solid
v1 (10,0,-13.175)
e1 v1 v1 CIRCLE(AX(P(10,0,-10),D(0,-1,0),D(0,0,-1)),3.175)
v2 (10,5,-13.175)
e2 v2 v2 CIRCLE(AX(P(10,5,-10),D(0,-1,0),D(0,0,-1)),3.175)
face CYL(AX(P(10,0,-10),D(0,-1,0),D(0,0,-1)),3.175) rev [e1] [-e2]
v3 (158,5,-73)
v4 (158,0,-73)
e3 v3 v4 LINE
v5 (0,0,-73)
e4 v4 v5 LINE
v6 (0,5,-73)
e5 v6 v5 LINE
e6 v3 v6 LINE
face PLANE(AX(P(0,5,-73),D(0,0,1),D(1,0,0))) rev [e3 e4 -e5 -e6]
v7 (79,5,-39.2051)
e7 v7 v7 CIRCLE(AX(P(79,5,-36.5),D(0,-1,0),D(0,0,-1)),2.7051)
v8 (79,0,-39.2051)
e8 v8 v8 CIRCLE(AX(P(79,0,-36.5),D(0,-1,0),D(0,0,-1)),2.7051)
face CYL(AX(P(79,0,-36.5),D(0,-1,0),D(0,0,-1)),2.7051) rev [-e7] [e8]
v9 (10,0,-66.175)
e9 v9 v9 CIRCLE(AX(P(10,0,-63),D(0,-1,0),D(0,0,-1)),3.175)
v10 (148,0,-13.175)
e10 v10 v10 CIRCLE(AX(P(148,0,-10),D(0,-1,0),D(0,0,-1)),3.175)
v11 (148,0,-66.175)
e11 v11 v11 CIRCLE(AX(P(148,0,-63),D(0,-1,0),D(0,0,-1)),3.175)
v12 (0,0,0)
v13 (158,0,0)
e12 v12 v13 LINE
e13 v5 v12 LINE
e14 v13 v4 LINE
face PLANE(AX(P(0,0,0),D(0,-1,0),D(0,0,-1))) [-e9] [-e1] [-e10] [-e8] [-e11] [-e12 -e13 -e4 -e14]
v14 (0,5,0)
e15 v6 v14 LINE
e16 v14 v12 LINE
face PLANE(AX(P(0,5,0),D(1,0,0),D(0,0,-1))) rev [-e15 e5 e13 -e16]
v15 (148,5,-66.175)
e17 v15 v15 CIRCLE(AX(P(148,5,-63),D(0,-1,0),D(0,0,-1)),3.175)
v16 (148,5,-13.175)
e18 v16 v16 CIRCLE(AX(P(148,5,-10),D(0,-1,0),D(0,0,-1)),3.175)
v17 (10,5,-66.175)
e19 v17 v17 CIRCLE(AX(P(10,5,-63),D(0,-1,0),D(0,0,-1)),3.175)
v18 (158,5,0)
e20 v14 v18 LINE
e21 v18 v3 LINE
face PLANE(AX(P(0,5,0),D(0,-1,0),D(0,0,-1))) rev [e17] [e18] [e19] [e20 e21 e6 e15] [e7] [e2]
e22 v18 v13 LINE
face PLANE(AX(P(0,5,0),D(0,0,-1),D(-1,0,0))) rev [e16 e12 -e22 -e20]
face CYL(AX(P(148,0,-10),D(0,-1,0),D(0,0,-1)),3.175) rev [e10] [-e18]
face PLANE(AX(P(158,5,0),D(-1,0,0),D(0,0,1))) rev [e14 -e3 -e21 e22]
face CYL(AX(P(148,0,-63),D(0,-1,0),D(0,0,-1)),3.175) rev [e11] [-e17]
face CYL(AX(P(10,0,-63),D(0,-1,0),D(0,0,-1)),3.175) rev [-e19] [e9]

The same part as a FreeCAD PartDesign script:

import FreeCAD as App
import Part
import Sketcher
from FreeCAD import Vector


def add_polygon(sketch, points):
    """Adds a closed chain of lines whose ends are joined by coincident constraints."""
    first, n = sketch.GeometryCount, len(points)
    for a, b in zip(points, points[1:] + points[:1]):
        sketch.addGeometry(Part.LineSegment(App.Vector(*a, 0), App.Vector(*b, 0)), False)
    for i in range(n):
        sketch.addConstraint(Sketcher.Constraint("Coincident", first + i, 2, first + (i + 1) % n, 1))

doc = App.newDocument("Part")
body = doc.addObject("PartDesign::Body", "Body")

sketch1 = doc.addObject("Sketcher::SketchObject", "Sketch")
body.addObject(sketch1)
sketch1.AttachmentSupport = (doc.XZ_Plane, [""])
sketch1.MapMode = "FlatFace"
add_polygon(sketch1, [(0, -73), (0, 0), (158, 0), (158, -73)])
sketch1.addConstraint([
    Sketcher.Constraint("Vertical", 0),
    Sketcher.Constraint("Horizontal", 1),
    Sketcher.Constraint("Vertical", 2),
    Sketcher.Constraint("Horizontal", 3),
    Sketcher.Constraint("Coincident", 0, 2, -1, 1),
    Sketcher.Constraint("DistanceX", 1, 1, 1, 2, 158.0),
    Sketcher.Constraint("DistanceY", 0, 1, 0, 2, 73.0),
])
pad1 = doc.addObject("PartDesign::Pad", "Pad")
body.addObject(pad1)
pad1.Profile = sketch1
pad1.Length = 5
pad1.Reversed = True

sketch2 = doc.addObject("Sketcher::SketchObject", "Sketch001")
body.addObject(sketch2)
sketch2.AttachmentSupport = (doc.XZ_Plane, [""])
sketch2.MapMode = "FlatFace"
sketch2.addGeometry([
    Part.Circle(Vector(10, -10, 0), Vector(0, 0, 1), 3.2),
    Part.Circle(Vector(10, -63, 0), Vector(0, 0, 1), 3.2),
    Part.Circle(Vector(148, -63, 0), Vector(0, 0, 1), 3.2),
    Part.Circle(Vector(148, -10, 0), Vector(0, 0, 1), 3.2),
], False)
sketch2.addConstraint([
    Sketcher.Constraint("Equal", 0, 1),
    Sketcher.Constraint("Equal", 1, 2),
    Sketcher.Constraint("Equal", 2, 3),
    Sketcher.Constraint("Horizontal", 1, 3, 2, 3),
    Sketcher.Constraint("Horizontal", 0, 3, 3, 3),
    Sketcher.Constraint("Vertical", 0, 3, 1, 3),
    Sketcher.Constraint("Vertical", 2, 3, 3, 3),
    Sketcher.Constraint("Diameter", 0, 6.35),
    Sketcher.Constraint("DistanceX", -1, 1, 0, 3, 10.0),
    Sketcher.Constraint("DistanceY", 0, 3, -1, 1, 10.0),
    Sketcher.Constraint("DistanceY", 1, 3, -1, 1, 63.0),
    Sketcher.Constraint("DistanceX", -1, 1, 2, 3, 148.0),
])
doc.recompute()
hole = doc.addObject("PartDesign::Hole", "Hole")
body.addObject(hole)
hole.Profile = sketch2
hole.ThreadType = "None"
hole.Diameter = 6.35
hole.DepthType = "ThroughAll"

sketch3 = doc.addObject("Sketcher::SketchObject", "Sketch002")
body.addObject(sketch3)
sketch3.AttachmentSupport = (doc.XZ_Plane, [""])
sketch3.MapMode = "FlatFace"
sketch3.addGeometry(Part.Circle(Vector(79, -36.5, 0), Vector(0, 0, 1), 2.7), False)
sketch3.addConstraint([
    Sketcher.Constraint("DistanceX", -1, 1, 0, 3, 79.0),
    Sketcher.Constraint("Diameter", 0, 5.4102),
    Sketcher.Constraint("DistanceY", 0, 3, -1, 1, 36.5),
])
doc.recompute()
hole2 = doc.addObject("PartDesign::Hole", "Hole001")
body.addObject(hole2)
hole2.Profile = sketch3
hole2.ThreadType = "None"
hole2.Diameter = 5.4102
hole2.DepthType = "ThroughAll"

doc.recompute()
